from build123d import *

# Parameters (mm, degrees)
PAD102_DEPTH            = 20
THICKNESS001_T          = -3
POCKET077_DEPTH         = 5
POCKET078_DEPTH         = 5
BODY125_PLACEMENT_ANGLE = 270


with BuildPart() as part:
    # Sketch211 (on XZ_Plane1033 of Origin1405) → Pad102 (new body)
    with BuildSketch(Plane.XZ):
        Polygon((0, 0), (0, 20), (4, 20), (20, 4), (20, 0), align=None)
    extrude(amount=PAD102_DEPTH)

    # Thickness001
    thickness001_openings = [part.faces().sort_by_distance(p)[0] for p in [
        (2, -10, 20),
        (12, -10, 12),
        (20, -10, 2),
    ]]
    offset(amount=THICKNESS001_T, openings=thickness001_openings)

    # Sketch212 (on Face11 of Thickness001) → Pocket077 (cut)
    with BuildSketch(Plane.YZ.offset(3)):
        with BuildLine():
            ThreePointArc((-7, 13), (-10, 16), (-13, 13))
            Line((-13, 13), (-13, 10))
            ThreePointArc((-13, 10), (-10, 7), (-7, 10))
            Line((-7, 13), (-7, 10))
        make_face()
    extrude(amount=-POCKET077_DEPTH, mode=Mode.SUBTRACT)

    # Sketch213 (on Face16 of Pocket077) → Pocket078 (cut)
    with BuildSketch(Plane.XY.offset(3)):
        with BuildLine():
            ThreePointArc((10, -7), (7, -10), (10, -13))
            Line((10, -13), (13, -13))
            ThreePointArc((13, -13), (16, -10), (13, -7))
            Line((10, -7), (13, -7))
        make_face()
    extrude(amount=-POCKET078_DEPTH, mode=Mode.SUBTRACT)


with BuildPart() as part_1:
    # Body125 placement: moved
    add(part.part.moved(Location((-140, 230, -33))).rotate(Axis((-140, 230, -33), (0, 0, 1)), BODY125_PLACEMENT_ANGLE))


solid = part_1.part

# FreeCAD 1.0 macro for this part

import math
import FreeCAD as App
import Part
import Sketcher
Q = App.Units.Quantity


def faces_at(feature, points):
    """Names of the faces that lie closest to the given points."""
    faces = feature.Shape.Faces
    near = lambda p: min(range(len(faces)), key=lambda i: faces[i].distToShape(Part.Vertex(*p))[0])
    return sorted({f"Face{near(p) + 1}" for p in points})


def add_polygon(sketch, points):
    """Adds a closed chain of lines whose ends are joined by coincident constraints."""
    first, n = sketch.GeometryCount, len(points)
    for a, b in zip(points, points[1:] + points[:1]):
        sketch.addGeometry(Part.LineSegment(App.Vector(*a, 0), App.Vector(*b, 0)), False)
    for i in range(n):
        sketch.addConstraint(Sketcher.Constraint("Coincident", first + i, 2, first + (i + 1) % n, 1))

doc = App.newDocument("Part")
body = doc.addObject("PartDesign::Body", "Body")

# Sketch on XZ plane
sketch1 = doc.addObject("Sketcher::SketchObject", "Sketch")
body.addObject(sketch1)
sketch1.AttachmentSupport = (doc.XZ_Plane, [""])
sketch1.MapMode = "FlatFace"
add_polygon(sketch1, [(0, 20), (0, 0), (20, 0), (20, 4), (4, 20)])  # lines 0-4
sketch1.addConstraint(Sketcher.Constraint("Vertical", 0))
sketch1.addConstraint(Sketcher.Constraint("Horizontal", 1))
sketch1.addConstraint(Sketcher.Constraint("Vertical", 2))
sketch1.addConstraint(Sketcher.Constraint("Horizontal", 4))
sketch1.addConstraint(Sketcher.Constraint("Coincident", 0, 2, -1, 1))
sketch1.addConstraint(Sketcher.Constraint("Equal", 1, 0))
sketch1.addConstraint(Sketcher.Constraint("Equal", 4, 2))
sketch1.addConstraint(Sketcher.Constraint("DistanceX", 1, 1, 1, 2, Q("20 mm")))
sketch1.addConstraint(Sketcher.Constraint("DistanceX", 4, 2, 4, 1, Q("4 mm")))
pad1 = doc.addObject("PartDesign::Pad", "Pad")
body.addObject(pad1)
pad1.Profile = sketch1
pad1.Length = 20
doc.recompute()

thickness = doc.addObject("PartDesign::Thickness", "Thickness")
body.addObject(thickness)
thickness.Base = (pad1, faces_at(pad1, [(2, -10, 20), (12, -10, 12), (20, -10, 2)]))
thickness.Value = 3
thickness.Reversed = True
thickness.Join = "Arc"

# Sketch on YZ plane
sketch2 = doc.addObject("Sketcher::SketchObject", "Sketch001")
body.addObject(sketch2)
sketch2.AttachmentSupport = (doc.YZ_Plane, [""])
sketch2.MapMode = "FlatFace"
sketch2.AttachmentOffset = App.Placement(App.Vector(0, 0, 3), App.Rotation())
sketch2.addGeometry(Part.ArcOfCircle(Part.Circle(App.Vector(-10, 13, 0), App.Vector(0, 0, 1), 3), math.radians(0), math.radians(180)), False)
sketch2.addGeometry(Part.LineSegment(App.Vector(-13, 13, 0), App.Vector(-13, 10, 0)), False)
sketch2.addGeometry(Part.ArcOfCircle(Part.Circle(App.Vector(-10, 10, 0), App.Vector(0, 0, 1), 3), math.radians(180), math.radians(360)), False)
sketch2.addGeometry(Part.LineSegment(App.Vector(-7, 10, 0), App.Vector(-7, 13, 0)), False)
sketch2.addConstraint(Sketcher.Constraint("Tangent", 0, 2, 1, 1))
sketch2.addConstraint(Sketcher.Constraint("Tangent", 1, 2, 2, 1))
sketch2.addConstraint(Sketcher.Constraint("Tangent", 2, 2, 3, 1))
sketch2.addConstraint(Sketcher.Constraint("Tangent", 3, 2, 0, 1))
sketch2.addConstraint(Sketcher.Constraint("Vertical", 1))
sketch2.addConstraint(Sketcher.Constraint("Vertical", 3))
sketch2.addConstraint(Sketcher.Constraint("Radius", 0, Q("3 mm")))
sketch2.addConstraint(Sketcher.Constraint("DistanceY", 1, 2, 1, 1, Q("3 mm")))
sketch2.addConstraint(Sketcher.Constraint("DistanceX", 0, 3, -1, 1, Q("10 mm")))
sketch2.addConstraint(Sketcher.Constraint("DistanceY", -1, 1, 0, 3, Q("13 mm")))
pocket1 = doc.addObject("PartDesign::Pocket", "Pocket")
body.addObject(pocket1)
pocket1.Profile = sketch2
pocket1.Length = 5

# Sketch on XY plane
sketch3 = doc.addObject("Sketcher::SketchObject", "Sketch002")
body.addObject(sketch3)
sketch3.AttachmentSupport = (doc.XY_Plane, [""])
sketch3.MapMode = "FlatFace"
sketch3.AttachmentOffset = App.Placement(App.Vector(0, 0, 3), App.Rotation())
sketch3.addGeometry(Part.ArcOfCircle(Part.Circle(App.Vector(10, -10, 0), App.Vector(0, 0, 1), 3), math.radians(90), math.radians(270)), False)
sketch3.addGeometry(Part.LineSegment(App.Vector(10, -13, 0), App.Vector(13, -13, 0)), False)
sketch3.addGeometry(Part.ArcOfCircle(Part.Circle(App.Vector(13, -10, 0), App.Vector(0, 0, 1), 3), math.radians(-90), math.radians(90)), False)
sketch3.addGeometry(Part.LineSegment(App.Vector(13, -7, 0), App.Vector(10, -7, 0)), False)
sketch3.addConstraint(Sketcher.Constraint("Tangent", 0, 2, 1, 1))
sketch3.addConstraint(Sketcher.Constraint("Tangent", 1, 2, 2, 1))
sketch3.addConstraint(Sketcher.Constraint("Tangent", 2, 2, 3, 1))
sketch3.addConstraint(Sketcher.Constraint("Tangent", 3, 2, 0, 1))
sketch3.addConstraint(Sketcher.Constraint("Horizontal", 1))
sketch3.addConstraint(Sketcher.Constraint("Horizontal", 3))
sketch3.addConstraint(Sketcher.Constraint("Radius", 0, Q("3 mm")))
sketch3.addConstraint(Sketcher.Constraint("DistanceX", 1, 1, 1, 2, Q("3 mm")))
sketch3.addConstraint(Sketcher.Constraint("DistanceX", -1, 1, 0, 3, Q("10 mm")))
sketch3.addConstraint(Sketcher.Constraint("DistanceY", 0, 3, -1, 1, Q("10 mm")))
pocket2 = doc.addObject("PartDesign::Pocket", "Pocket001")
body.addObject(pocket2)
pocket2.Profile = sketch3
pocket2.Length = 5
body2 = doc.addObject("PartDesign::Body", "Body001")
doc.recompute()

body.Placement = App.Placement(App.Vector(-140, 230, -33), App.Rotation(App.Vector(0, 0, 1), 270))
boolean = doc.addObject("PartDesign::Boolean", "Boolean")
body2.addObject(boolean)
boolean.Type = "Fuse"
boolean.addObjects([body])

doc.recompute()
